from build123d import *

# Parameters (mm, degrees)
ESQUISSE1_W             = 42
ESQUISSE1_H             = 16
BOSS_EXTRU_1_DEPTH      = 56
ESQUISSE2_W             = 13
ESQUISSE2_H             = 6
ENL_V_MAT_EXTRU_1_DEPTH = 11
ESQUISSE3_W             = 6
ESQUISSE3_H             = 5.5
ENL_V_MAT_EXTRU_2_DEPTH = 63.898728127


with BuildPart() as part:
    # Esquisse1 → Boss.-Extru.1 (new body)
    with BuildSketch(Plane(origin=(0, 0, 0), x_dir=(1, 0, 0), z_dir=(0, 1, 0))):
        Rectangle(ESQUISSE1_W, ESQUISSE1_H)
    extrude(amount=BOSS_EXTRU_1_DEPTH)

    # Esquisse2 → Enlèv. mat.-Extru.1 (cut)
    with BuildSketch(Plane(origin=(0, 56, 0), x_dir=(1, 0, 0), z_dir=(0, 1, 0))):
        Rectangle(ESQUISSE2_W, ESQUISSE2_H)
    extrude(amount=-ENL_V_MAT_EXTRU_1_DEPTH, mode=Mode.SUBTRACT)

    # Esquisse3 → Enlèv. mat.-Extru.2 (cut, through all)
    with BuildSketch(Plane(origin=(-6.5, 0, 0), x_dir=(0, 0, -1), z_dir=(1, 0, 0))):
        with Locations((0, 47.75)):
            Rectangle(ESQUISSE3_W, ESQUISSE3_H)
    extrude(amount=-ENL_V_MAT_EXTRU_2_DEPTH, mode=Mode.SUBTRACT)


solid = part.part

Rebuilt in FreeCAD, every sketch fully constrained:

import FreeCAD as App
import Part
import Sketcher
Q = App.Units.Quantity


def add_polygon(sketch, points):
    """Adds a closed chain of lines whose ends are joined by coincident constraints."""
    first, n = sketch.GeometryCount, len(points)
    for a, b in zip(points, points[1:] + points[:1]):
        sketch.addGeometry(Part.LineSegment(App.Vector(*a, 0), App.Vector(*b, 0)), False)
    for i in range(n):
        sketch.addConstraint(Sketcher.Constraint("Coincident", first + i, 2, first + (i + 1) % n, 1))

doc = App.newDocument("Part")
params = doc.addObject("Spreadsheet::Sheet", "Params")
for row, (alias, value) in enumerate([
    ("sketch1_width", "42 mm"),
    ("sketch1_height", "16 mm"),
    ("pad1_length", "56 mm"),
    ("sketch2_width", "13 mm"),
    ("sketch2_height", "6 mm"),
    ("pocket1_length", "11 mm"),
    ("sketch3_height", "6 mm"),
    ("sketch3_width", "5.5 mm"),
], start=1):
    params.set(f"A{row}", alias)
    params.set(f"B{row}", "=" + value)
    params.setAlias(f"B{row}", alias)

body = doc.addObject("PartDesign::Body", "Body")

# Sketch on XZ plane
sketch1 = body.newObject("Sketcher::SketchObject", "Sketch")
sketch1.AttachmentSupport = (doc.getObject("XZ_Plane"), [""])
sketch1.MapMode = "FlatFace"
add_polygon(sketch1, [(-21, -8), (-21, 8), (21, 8), (21, -8)])  # lines 0-3
sketch1.addConstraint([
    Sketcher.Constraint("Vertical", 0),
    Sketcher.Constraint("Horizontal", 1),
    Sketcher.Constraint("Vertical", 2),
    Sketcher.Constraint("Horizontal", 3),
    Sketcher.Constraint("Symmetric", 0, 2, 2, 2, -1, 1),
    Sketcher.Constraint("DistanceX", 1, 1, 1, 2, Q("42 mm")),
    Sketcher.Constraint("DistanceY", 0, 1, 0, 2, Q("16 mm")),
])
sketch1.setExpression("Constraints[9]", "Params.sketch1_width")
sketch1.setExpression("Constraints[10]", "Params.sketch1_height")
pad1 = body.newObject("PartDesign::Pad", "Pad")
pad1.Profile = sketch1
pad1.setExpression("Length", "Params.pad1_length")
pad1.Reversed = True

# Sketch on XZ plane
sketch2 = body.newObject("Sketcher::SketchObject", "Sketch001")
sketch2.AttachmentSupport = (doc.getObject("XZ_Plane"), [""])
sketch2.MapMode = "FlatFace"
sketch2.AttachmentOffset = App.Placement(App.Vector(0, 0, -56), App.Rotation())
add_polygon(sketch2, [(-6, -3), (-6, 3), (6, 3), (6, -3)])  # lines 0-3
sketch2.addConstraint([
    Sketcher.Constraint("Vertical", 0),
    Sketcher.Constraint("Horizontal", 1),
    Sketcher.Constraint("Vertical", 2),
    Sketcher.Constraint("Horizontal", 3),
    Sketcher.Constraint("Symmetric", 0, 2, 2, 2, -1, 1),
    Sketcher.Constraint("DistanceX", 1, 1, 1, 2, Q("13 mm")),
    Sketcher.Constraint("DistanceY", 0, 1, 0, 2, Q("6 mm")),
])
sketch2.setExpression("Constraints[9]", "Params.sketch2_width")
sketch2.setExpression("Constraints[10]", "Params.sketch2_height")
pocket1 = body.newObject("PartDesign::Pocket", "Pocket")
pocket1.Profile = sketch2
pocket1.setExpression("Length", "Params.pocket1_length")
pocket1.Reversed = True

# Sketch on YZ plane
sketch3 = body.newObject("Sketcher::SketchObject", "Sketch002")
sketch3.AttachmentSupport = (doc.getObject("YZ_Plane"), [""])
sketch3.MapMode = "FlatFace"
sketch3.AttachmentOffset = App.Placement(App.Vector(0, 0, -6.5), App.Rotation())
add_polygon(sketch3, [(50, 3), (45, 3), (45, -3), (50, -3)])  # lines 0-3
sketch3.addConstraint([
    Sketcher.Constraint("Horizontal", 0),
    Sketcher.Constraint("Vertical", 1),
    Sketcher.Constraint("Horizontal", 2),
    Sketcher.Constraint("Vertical", 3),
    Sketcher.Constraint("DistanceY", 1, 2, 1, 1, Q("6 mm")),
    Sketcher.Constraint("DistanceX", 0, 2, 0, 1, Q("5.5 mm")),
    Sketcher.Constraint("DistanceX", -1, 1, 0, 2, Q("45 mm")),
    Sketcher.Constraint("DistanceY", -1, 1, 0, 2, Q("3 mm")),
])
sketch3.setExpression("Constraints[8]", "Params.sketch3_height")
sketch3.setExpression("Constraints[9]", "Params.sketch3_width")
pocket2 = body.newObject("PartDesign::Pocket", "Pocket001")
pocket2.Profile = sketch3
pocket2.Type = "ThroughAll"

doc.recompute()
